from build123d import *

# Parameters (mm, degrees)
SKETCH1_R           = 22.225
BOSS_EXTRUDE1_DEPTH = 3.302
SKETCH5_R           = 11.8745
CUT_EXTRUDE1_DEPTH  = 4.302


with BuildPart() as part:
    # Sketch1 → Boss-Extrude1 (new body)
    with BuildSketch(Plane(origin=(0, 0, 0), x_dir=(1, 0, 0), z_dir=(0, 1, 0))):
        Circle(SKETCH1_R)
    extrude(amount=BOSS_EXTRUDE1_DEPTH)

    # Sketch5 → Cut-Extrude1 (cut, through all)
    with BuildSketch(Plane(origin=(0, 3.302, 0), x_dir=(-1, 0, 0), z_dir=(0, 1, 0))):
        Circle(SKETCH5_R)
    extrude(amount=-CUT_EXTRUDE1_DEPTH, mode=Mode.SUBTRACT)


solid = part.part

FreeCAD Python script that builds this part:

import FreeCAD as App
import Part
import Sketcher
from FreeCAD import Vector
Q = App.Units.Quantity

doc = App.newDocument("Part")
body = doc.addObject("PartDesign::Body", "Body")

sketch1 = doc.addObject("Sketcher::SketchObject", "Sketch")
body.addObject(sketch1)
sketch1.AttachmentSupport = (doc.XZ_Plane, [""])
sketch1.MapMode = "FlatFace"
sketch1.addGeometry(Part.Circle(Vector(0, 0, 0), Vector(0, 0, 1), 22), False)
sketch1.addConstraint(Sketcher.Constraint("Coincident", 0, 3, -1, 1))
sketch1.addConstraint(Sketcher.Constraint("Diameter", 0, Q("1.75 in")))
pad1 = doc.addObject("PartDesign::Pad", "Pad")
body.addObject(pad1)
pad1.Profile = sketch1
pad1.Length = Q("0.13 in")
pad1.Reversed = True

sketch2 = doc.addObject("Sketcher::SketchObject", "Sketch001")
body.addObject(sketch2)
sketch2.AttachmentSupport = (doc.XZ_Plane, [""])
sketch2.MapMode = "FlatFace"
sketch2.AttachmentOffset = App.Placement(Vector(0, 0, -0.13 * 25.4), App.Rotation())
sketch2.addGeometry(Part.Circle(Vector(0, 0, 0), Vector(0, 0, 1), 12), False)
sketch2.addConstraint(Sketcher.Constraint("Coincident", 0, 3, -1, 1))
sketch2.addConstraint(Sketcher.Constraint("Diameter", 0, Q("0.935 in")))
pocket1 = doc.addObject("PartDesign::Pocket", "Pocket")
body.addObject(pocket1)
pocket1.Profile = sketch2
pocket1.Type = "ThroughAll"
pocket1.Reversed = True

doc.recompute()
